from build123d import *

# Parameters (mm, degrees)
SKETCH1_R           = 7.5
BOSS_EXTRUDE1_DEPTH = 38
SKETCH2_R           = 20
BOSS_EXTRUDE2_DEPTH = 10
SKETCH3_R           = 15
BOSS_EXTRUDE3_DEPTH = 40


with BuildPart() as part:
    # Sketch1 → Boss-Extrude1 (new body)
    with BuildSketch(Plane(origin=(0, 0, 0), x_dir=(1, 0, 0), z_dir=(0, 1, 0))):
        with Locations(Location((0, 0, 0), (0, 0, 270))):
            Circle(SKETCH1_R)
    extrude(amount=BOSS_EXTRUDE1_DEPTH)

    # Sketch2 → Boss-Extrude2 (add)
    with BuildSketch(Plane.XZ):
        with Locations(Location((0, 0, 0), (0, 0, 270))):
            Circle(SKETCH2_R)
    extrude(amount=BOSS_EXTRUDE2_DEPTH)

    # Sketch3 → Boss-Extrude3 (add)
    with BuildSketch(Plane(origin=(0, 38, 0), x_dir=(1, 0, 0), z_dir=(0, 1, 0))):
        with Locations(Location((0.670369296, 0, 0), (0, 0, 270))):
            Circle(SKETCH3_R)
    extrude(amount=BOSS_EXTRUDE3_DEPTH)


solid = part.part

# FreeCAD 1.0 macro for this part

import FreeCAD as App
import Part
import Sketcher
from FreeCAD import Vector

doc = App.newDocument("Part")
params = doc.addObject("Spreadsheet::Sheet", "Params")
for row, (alias, value) in enumerate([
    ("sketch1_diameter", "15 mm"),
    ("pad1_length", "38 mm"),
    ("sketch2_diameter", "40 mm"),
    ("pad2_length", "10 mm"),
    ("sketch3_diameter", "30 mm"),
    ("pad3_length", "40 mm"),
], start=1):
    params.set(f"A{row}", alias)
    params.set(f"B{row}", "=" + value)
    params.setAlias(f"B{row}", alias)

body = doc.addObject("PartDesign::Body", "Body")

# Sketch on XZ plane
sketch1 = doc.addObject("Sketcher::SketchObject", "Sketch")
body.addObject(sketch1)
sketch1.AttachmentSupport = (doc.XZ_Plane, [""])
sketch1.MapMode = "FlatFace"
sketch1.addGeometry(Part.Circle(Vector(0, 0, 0), Vector(0, 0, 1), 8), False)
sketch1.addConstraint([
    Sketcher.Constraint("Coincident", 0, 3, -1, 1),
    Sketcher.Constraint("Diameter", 0, 15.0),
])
sketch1.setExpression("Constraints[1]", "Params.sketch1_diameter")
pad1 = doc.addObject("PartDesign::Pad", "Pad")
body.addObject(pad1)
pad1.Profile = sketch1
pad1.setExpression("Length", "Params.pad1_length")
pad1.Reversed = True

# Sketch on XZ plane
sketch2 = doc.addObject("Sketcher::SketchObject", "Sketch001")
body.addObject(sketch2)
sketch2.AttachmentSupport = (doc.XZ_Plane, [""])
sketch2.MapMode = "FlatFace"
sketch2.addGeometry(Part.Circle(Vector(0, 0, 0), Vector(0, 0, 1), 20), False)
sketch2.addConstraint([
    Sketcher.Constraint("Coincident", 0, 3, -1, 1),
    Sketcher.Constraint("Diameter", 0, 40.0),
])
sketch2.setExpression("Constraints[1]", "Params.sketch2_diameter")
pad2 = doc.addObject("PartDesign::Pad", "Pad001")
body.addObject(pad2)
pad2.Profile = sketch2
pad2.setExpression("Length", "Params.pad2_length")

# Sketch on XZ plane
sketch3 = doc.addObject("Sketcher::SketchObject", "Sketch002")
body.addObject(sketch3)
sketch3.AttachmentSupport = (doc.XZ_Plane, [""])
sketch3.MapMode = "FlatFace"
sketch3.AttachmentOffset = App.Placement(Vector(0, 0, -38), App.Rotation())
sketch3.addGeometry(Part.Circle(Vector(1, 0, 0), Vector(0, 0, 1), 15), False)
sketch3.addConstraint([
    Sketcher.Constraint("PointOnObject", 0, 3, -1),
    Sketcher.Constraint("Diameter", 0, 30.0),
    Sketcher.Constraint("DistanceX", -1, 1, 0, 3, 0.670369),
])
sketch3.setExpression("Constraints[1]", "Params.sketch3_diameter")
pad3 = doc.addObject("PartDesign::Pad", "Pad002")
body.addObject(pad3)
pad3.Profile = sketch3
pad3.setExpression("Length", "Params.pad3_length")
pad3.Reversed = True

doc.recompute()
